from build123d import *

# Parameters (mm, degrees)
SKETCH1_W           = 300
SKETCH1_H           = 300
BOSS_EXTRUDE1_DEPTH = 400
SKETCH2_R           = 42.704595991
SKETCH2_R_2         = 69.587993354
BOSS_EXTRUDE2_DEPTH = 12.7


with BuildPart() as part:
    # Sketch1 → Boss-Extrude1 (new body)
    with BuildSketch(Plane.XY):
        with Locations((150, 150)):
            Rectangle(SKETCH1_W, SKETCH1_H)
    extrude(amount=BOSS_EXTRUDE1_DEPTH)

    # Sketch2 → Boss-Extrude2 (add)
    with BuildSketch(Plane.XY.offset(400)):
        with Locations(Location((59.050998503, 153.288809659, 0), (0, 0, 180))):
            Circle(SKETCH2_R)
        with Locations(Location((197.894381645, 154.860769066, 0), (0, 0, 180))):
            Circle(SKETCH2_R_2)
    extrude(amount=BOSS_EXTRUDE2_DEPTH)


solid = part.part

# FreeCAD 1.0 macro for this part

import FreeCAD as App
import Part
import Sketcher

V = App.Vector

doc = App.newDocument("Part")
body = doc.addObject("PartDesign::Body", "Body")

sketch1 = body.newObject("Sketcher::SketchObject", "Sketch")
sketch1.AttachmentSupport = (doc.getObject("XY_Plane"), [""])
sketch1.MapMode = "FlatFace"
sketch1.addGeometry(Part.LineSegment(V(0, 300, 0), V(0, 0, 0)), False)
sketch1.addGeometry(Part.LineSegment(V(0, 0, 0), V(300, 0, 0)), False)
sketch1.addGeometry(Part.LineSegment(V(300, 0, 0), V(300, 300, 0)), False)
sketch1.addGeometry(Part.LineSegment(V(300, 300, 0), V(0, 300, 0)), False)
sketch1.addConstraint(Sketcher.Constraint("Coincident", 0, 2, 1, 1))
sketch1.addConstraint(Sketcher.Constraint("Coincident", 1, 2, 2, 1))
sketch1.addConstraint(Sketcher.Constraint("Coincident", 2, 2, 3, 1))
sketch1.addConstraint(Sketcher.Constraint("Coincident", 3, 2, 0, 1))
sketch1.addConstraint(Sketcher.Constraint("Vertical", 0))
sketch1.addConstraint(Sketcher.Constraint("Horizontal", 1))
sketch1.addConstraint(Sketcher.Constraint("Vertical", 2))
sketch1.addConstraint(Sketcher.Constraint("Horizontal", 3))
sketch1.addConstraint(Sketcher.Constraint("Coincident", 0, 2, -1, 1))
sketch1.addConstraint(Sketcher.Constraint("Equal", 3, 0))
sketch1.addConstraint(Sketcher.Constraint("DistanceX", 1, 1, 1, 2, 300.0))
pad1 = body.newObject("PartDesign::Pad", "Pad")
pad1.Profile = sketch1
pad1.Length = 400

sketch2 = body.newObject("Sketcher::SketchObject", "Sketch001")
sketch2.AttachmentSupport = (doc.getObject("XY_Plane"), [""])
sketch2.MapMode = "FlatFace"
sketch2.AttachmentOffset = App.Placement(V(0, 0, 400), App.Rotation())
sketch2.addGeometry(Part.Circle(V(59.050999, 153.28881, 0), V(0, 0, 1), 42.704596), False)
sketch2.addGeometry(Part.Circle(V(197.894382, 154.860769, 0), V(0, 0, 1), 69.587993), False)
sketch2.addConstraint(Sketcher.Constraint("Diameter", 0, 85.409192))
sketch2.addConstraint(Sketcher.Constraint("Diameter", 1, 139.175987))
sketch2.addConstraint(Sketcher.Constraint("DistanceX", -1, 1, 0, 3, 59.050999))
sketch2.addConstraint(Sketcher.Constraint("DistanceY", -1, 1, 0, 3, 153.28881))
sketch2.addConstraint(Sketcher.Constraint("DistanceX", -1, 1, 1, 3, 197.894382))
sketch2.addConstraint(Sketcher.Constraint("DistanceY", -1, 1, 1, 3, 154.860769))
pad2 = body.newObject("PartDesign::Pad", "Pad001")
pad2.Profile = sketch2
pad2.Length = 12.7

doc.recompute()
